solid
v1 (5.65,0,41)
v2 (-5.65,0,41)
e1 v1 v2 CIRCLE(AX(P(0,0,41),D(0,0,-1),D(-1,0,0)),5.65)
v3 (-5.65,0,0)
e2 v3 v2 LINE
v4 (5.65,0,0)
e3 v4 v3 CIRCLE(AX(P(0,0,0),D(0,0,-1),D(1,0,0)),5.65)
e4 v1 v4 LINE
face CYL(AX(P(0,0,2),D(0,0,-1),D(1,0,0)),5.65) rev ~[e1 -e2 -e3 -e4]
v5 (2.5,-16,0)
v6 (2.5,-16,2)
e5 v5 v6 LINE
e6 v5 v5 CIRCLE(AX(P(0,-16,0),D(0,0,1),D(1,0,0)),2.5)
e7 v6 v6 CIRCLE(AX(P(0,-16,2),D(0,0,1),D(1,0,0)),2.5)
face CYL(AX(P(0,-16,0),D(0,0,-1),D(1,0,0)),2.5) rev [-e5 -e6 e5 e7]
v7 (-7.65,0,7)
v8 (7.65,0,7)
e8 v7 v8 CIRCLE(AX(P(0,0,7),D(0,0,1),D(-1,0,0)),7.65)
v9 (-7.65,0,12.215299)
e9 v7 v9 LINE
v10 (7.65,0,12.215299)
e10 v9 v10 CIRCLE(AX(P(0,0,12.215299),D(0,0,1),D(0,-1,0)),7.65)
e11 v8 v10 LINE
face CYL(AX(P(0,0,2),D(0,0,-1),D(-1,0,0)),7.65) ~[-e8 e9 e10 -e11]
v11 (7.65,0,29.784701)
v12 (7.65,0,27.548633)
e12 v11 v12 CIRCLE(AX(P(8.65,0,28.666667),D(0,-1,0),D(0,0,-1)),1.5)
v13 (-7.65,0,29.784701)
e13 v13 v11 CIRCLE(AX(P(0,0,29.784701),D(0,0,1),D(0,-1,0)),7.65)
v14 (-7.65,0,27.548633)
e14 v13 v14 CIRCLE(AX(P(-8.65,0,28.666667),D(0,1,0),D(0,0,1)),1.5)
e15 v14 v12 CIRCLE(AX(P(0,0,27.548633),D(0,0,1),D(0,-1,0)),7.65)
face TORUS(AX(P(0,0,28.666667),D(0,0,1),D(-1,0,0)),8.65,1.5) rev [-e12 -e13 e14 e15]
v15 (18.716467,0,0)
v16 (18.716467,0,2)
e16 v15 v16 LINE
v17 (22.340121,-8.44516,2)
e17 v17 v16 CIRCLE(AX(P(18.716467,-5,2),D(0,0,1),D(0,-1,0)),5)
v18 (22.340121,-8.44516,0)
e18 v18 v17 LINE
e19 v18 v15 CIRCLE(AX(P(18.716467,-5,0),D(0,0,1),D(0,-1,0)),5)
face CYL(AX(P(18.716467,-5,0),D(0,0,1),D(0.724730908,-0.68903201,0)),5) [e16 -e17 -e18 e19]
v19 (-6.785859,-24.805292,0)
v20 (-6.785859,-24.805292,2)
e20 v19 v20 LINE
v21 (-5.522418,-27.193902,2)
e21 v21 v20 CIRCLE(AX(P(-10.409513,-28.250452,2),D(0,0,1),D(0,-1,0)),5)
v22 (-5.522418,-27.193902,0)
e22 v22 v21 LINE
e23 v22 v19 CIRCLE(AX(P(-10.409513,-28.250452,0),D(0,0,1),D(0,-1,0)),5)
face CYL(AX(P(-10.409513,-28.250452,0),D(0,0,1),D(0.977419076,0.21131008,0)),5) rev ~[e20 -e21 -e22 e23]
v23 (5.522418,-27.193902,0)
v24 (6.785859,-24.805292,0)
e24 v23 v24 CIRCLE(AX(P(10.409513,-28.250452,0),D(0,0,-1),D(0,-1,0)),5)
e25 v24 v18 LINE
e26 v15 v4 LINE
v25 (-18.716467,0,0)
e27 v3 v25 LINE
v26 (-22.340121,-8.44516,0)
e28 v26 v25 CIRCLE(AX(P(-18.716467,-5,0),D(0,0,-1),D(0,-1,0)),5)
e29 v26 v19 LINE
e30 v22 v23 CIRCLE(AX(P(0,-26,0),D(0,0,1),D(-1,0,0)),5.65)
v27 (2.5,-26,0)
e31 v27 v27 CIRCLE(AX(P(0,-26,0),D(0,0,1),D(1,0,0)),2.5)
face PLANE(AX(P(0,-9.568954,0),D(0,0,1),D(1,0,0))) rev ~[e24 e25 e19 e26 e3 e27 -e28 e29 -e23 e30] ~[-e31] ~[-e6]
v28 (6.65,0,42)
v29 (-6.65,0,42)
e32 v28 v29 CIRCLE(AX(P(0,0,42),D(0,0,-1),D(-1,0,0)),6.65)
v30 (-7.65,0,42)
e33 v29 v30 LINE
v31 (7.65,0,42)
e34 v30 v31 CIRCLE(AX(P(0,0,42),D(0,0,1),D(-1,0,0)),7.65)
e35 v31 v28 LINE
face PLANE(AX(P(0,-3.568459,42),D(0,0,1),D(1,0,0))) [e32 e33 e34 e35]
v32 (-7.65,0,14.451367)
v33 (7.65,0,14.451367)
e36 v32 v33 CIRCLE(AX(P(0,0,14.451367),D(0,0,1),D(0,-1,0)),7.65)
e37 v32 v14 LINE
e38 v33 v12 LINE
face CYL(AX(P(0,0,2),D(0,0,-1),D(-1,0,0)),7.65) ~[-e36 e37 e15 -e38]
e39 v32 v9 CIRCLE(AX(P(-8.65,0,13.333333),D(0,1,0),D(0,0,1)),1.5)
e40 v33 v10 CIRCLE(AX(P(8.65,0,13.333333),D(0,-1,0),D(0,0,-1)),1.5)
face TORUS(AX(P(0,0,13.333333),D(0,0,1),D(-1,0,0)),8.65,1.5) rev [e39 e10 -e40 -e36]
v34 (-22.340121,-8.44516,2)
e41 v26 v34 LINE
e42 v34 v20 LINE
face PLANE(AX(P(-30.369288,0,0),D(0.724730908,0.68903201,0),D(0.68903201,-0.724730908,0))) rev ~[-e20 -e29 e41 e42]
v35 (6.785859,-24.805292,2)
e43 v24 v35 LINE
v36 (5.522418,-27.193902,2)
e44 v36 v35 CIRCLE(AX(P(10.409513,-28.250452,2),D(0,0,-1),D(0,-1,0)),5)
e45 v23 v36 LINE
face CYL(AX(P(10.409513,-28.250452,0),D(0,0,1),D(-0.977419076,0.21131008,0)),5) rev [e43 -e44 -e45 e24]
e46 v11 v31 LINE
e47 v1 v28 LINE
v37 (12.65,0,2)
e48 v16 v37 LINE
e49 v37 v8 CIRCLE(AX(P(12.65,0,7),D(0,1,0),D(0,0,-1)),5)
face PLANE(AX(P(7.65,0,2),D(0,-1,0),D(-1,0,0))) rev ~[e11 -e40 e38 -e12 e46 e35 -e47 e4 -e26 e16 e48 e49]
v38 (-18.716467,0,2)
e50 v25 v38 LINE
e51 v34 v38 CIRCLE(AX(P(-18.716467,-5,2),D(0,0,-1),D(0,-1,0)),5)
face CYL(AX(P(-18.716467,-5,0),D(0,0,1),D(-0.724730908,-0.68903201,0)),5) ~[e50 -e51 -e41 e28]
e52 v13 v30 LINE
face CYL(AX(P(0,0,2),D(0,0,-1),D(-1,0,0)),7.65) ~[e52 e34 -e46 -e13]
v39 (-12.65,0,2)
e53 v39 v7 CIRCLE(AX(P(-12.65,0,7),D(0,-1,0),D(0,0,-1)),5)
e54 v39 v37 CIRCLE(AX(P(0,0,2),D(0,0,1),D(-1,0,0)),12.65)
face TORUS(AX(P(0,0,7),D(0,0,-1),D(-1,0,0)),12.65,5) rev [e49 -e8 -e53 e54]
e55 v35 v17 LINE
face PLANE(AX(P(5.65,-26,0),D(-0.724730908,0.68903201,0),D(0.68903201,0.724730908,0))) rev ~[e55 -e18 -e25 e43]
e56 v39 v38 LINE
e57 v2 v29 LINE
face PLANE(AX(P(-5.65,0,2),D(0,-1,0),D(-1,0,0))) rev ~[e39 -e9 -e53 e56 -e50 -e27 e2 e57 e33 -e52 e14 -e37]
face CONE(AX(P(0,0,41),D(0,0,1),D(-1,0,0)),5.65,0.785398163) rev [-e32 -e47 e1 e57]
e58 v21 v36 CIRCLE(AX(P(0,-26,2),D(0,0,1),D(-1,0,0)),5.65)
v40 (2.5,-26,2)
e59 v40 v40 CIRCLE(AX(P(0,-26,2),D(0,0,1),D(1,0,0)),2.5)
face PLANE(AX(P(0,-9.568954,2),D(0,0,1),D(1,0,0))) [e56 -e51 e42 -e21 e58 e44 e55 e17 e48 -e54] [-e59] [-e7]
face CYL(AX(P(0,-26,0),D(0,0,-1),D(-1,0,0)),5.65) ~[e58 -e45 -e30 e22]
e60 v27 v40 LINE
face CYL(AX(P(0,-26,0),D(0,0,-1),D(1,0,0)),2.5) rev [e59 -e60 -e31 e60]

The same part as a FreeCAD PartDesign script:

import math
import FreeCAD as App
import Part
import Sketcher


def edges_at(feature, points):
    """Names of the edges that pass closest to the given points."""
    edges = feature.Shape.Edges
    near = lambda p: min(range(len(edges)), key=lambda i: edges[i].distToShape(Part.Vertex(*p))[0])
    return sorted({f"Edge{near(p) + 1}" for p in points})

doc = App.newDocument("Part")
params = doc.addObject("Spreadsheet::Sheet", "Params")
for row, (alias, value) in enumerate([
    ("sketch1_diameter", "5 mm"),
    ("sketch1_radius", "5.65 mm"),
    ("pad1_length", "2 mm"),
    ("sketch2_width", "2 mm"),
    ("sketch2_radius", "5.65 mm"),
    ("pad2_length", "40 mm"),
    ("fillet_radius", "5 mm"),
    ("sketch3_radius", "1.5 mm"),
    ("sketch3_width", "1 mm"),
    ("groove_angle", "360 deg"),
], start=1):
    params.set(f"A{row}", alias)
    params.set(f"B{row}", "=" + value)
    params.setAlias(f"B{row}", alias)

body = doc.addObject("PartDesign::Body", "Body")

# Sketch on XY plane
sketch1 = body.newObject("Sketcher::SketchObject", "Sketch")
sketch1.AttachmentSupport = (doc.getObject("XY_Plane"), [""])
sketch1.MapMode = "FlatFace"
sketch1.addGeometry([
    Part.ArcOfCircle(Part.Circle(App.Vector(0, 0, 0), App.Vector(0, 0, 1), 5.7), math.radians(180), math.radians(360)),  # 0
    Part.LineSegment(App.Vector(-5.7, 0, 0), App.Vector(-30.4, 0, 0)),  # 1
    Part.LineSegment(App.Vector(-30.4, 0, 0), App.Vector(-5.7, -26, 0)),  # 2
    Part.ArcOfCircle(Part.Circle(App.Vector(0, -26, 0), App.Vector(0, 0, 1), 5.7), math.radians(180), math.radians(360)),  # 3
    Part.LineSegment(App.Vector(5.7, -26, 0), App.Vector(30.4, 0, 0)),  # 4
    Part.LineSegment(App.Vector(30.4, 0, 0), App.Vector(5.7, 0, 0)),  # 5
    Part.Circle(App.Vector(0, -26, 0), App.Vector(0, 0, 1), 2.5),  # 6
    Part.Circle(App.Vector(0, -16, 0), App.Vector(0, 0, 1), 2.5),  # 7
], False)
sketch1.addConstraint([
    Sketcher.Constraint("Coincident", 0, 1, 1, 1),
    Sketcher.Constraint("Coincident", 1, 2, 2, 1),
    Sketcher.Constraint("Coincident", 2, 2, 3, 1),
    Sketcher.Constraint("Coincident", 3, 2, 4, 1),
    Sketcher.Constraint("Coincident", 4, 2, 5, 1),
    Sketcher.Constraint("Coincident", 5, 2, 0, 2),
    Sketcher.Constraint("Horizontal", 1),
    Sketcher.Constraint("Horizontal", 5),
    Sketcher.Constraint("Coincident", 0, 3, -1, 1),
    Sketcher.Constraint("Coincident", 6, 3, 3, 3),
    Sketcher.Constraint("Equal", 0, 3),
    Sketcher.Constraint("Equal", 6, 7),
    Sketcher.Constraint("Symmetric", 1, 2, 4, 2, -1, 1),
    Sketcher.Constraint("Symmetric", 2, 2, 3, 2, -2),
    Sketcher.Constraint("PointOnObject", 7, 3, -2),
    Sketcher.Constraint("PointOnObject", 0, 1, -1),
    Sketcher.Constraint("Horizontal", 6, 3, 2, 2),
    Sketcher.Constraint("Diameter", 6, 5.0),
    Sketcher.Constraint("Radius", 0, 5.65),
    Sketcher.Constraint("DistanceY", 3, 3, -1, 1, 26.0),
    Sketcher.Constraint("DistanceY", 7, 3, -1, 1, 16.0),
    Sketcher.Constraint("DistanceX", 1, 2, 1, 1, 24.719288),
])
sketch1.setExpression("Constraints[17]", "Params.sketch1_diameter")
sketch1.setExpression("Constraints[18]", "Params.sketch1_radius")
pad1 = body.newObject("PartDesign::Pad", "Pad")
pad1.Profile = sketch1
pad1.setExpression("Length", "Params.pad1_length")

# Sketch on XY plane
sketch2 = body.newObject("Sketcher::SketchObject", "Sketch001")
sketch2.AttachmentSupport = (doc.getObject("XY_Plane"), [""])
sketch2.MapMode = "FlatFace"
sketch2.AttachmentOffset = App.Placement(App.Vector(0, 0, 2), App.Rotation())
sketch2.addGeometry([
    Part.ArcOfCircle(Part.Circle(App.Vector(0, 0, 0), App.Vector(0, 0, 1), 5.7), math.radians(180), math.radians(360)),
    Part.LineSegment(App.Vector(-5.7, 0, 0), App.Vector(-7.7, 0, 0)),
    Part.ArcOfCircle(Part.Circle(App.Vector(0, 0, 0), App.Vector(0, 0, 1), 7.7), math.radians(180), math.radians(360)),
    Part.LineSegment(App.Vector(7.7, 0, 0), App.Vector(5.7, 0, 0)),
], False)
sketch2.addConstraint([
    Sketcher.Constraint("Coincident", 0, 1, 1, 1),
    Sketcher.Constraint("Coincident", 1, 2, 2, 1),
    Sketcher.Constraint("Coincident", 2, 2, 3, 1),
    Sketcher.Constraint("Coincident", 3, 2, 0, 2),
    Sketcher.Constraint("Horizontal", 1),
    Sketcher.Constraint("Horizontal", 3),
    Sketcher.Constraint("Coincident", 0, 3, -1, 1),
    Sketcher.Constraint("Coincident", 2, 3, -1, 1),
    Sketcher.Constraint("PointOnObject", 0, 1, -1),
    Sketcher.Constraint("PointOnObject", 2, 2, -1),
    Sketcher.Constraint("DistanceX", 1, 2, 1, 1, 2.0),
    Sketcher.Constraint("Radius", 0, 5.65),
])
sketch2.setExpression("Constraints[10]", "Params.sketch2_width")
sketch2.setExpression("Constraints[11]", "Params.sketch2_radius")
pad2 = body.newObject("PartDesign::Pad", "Pad001")
pad2.Profile = sketch2
pad2.setExpression("Length", "Params.pad2_length")
doc.recompute()

fillet = body.newObject("PartDesign::Fillet", "Fillet")
fillet.Base = (pad2, edges_at(pad2, [
    (0, -7.65, 2),
    (-30.369, 0, 1),
    (-5.65, -26, 1),
    (5.65, -26, 1),
    (30.369, 0, 1),
]))
fillet.setExpression("Radius", "Params.fillet_radius")

# Sketch on XZ plane
sketch3 = body.newObject("Sketcher::SketchObject", "Sketch002")
sketch3.AttachmentSupport = (doc.getObject("XZ_Plane"), [""])
sketch3.MapMode = "FlatFace"
sketch3.addGeometry([
    Part.ArcOfCircle(Part.Circle(App.Vector(-8.7, 13.3, 0), App.Vector(0, 0, 1), 1.5), math.radians(-90), math.radians(90)),  # 0
    Part.LineSegment(App.Vector(-8.7, 11.8, 0), App.Vector(-8.7, 14.8, 0)),  # 1
    Part.ArcOfCircle(Part.Circle(App.Vector(-8.7, 28.7, 0), App.Vector(0, 0, 1), 1.5), math.radians(-90), math.radians(90)),  # 2
    Part.LineSegment(App.Vector(-8.7, 27.2, 0), App.Vector(-8.7, 30.2, 0)),  # 3
    Part.LineSegment(App.Vector(-5.7, 41, 0), App.Vector(-6.7, 42, 0)),  # 4
    Part.LineSegment(App.Vector(-6.7, 42, 0), App.Vector(-5.7, 42, 0)),  # 5
    Part.LineSegment(App.Vector(-5.7, 42, 0), App.Vector(-5.7, 41, 0)),  # 6
], False)
sketch3.addConstraint([
    Sketcher.Constraint("Coincident", 0, 1, 1, 1),
    Sketcher.Constraint("Coincident", 1, 2, 0, 2),
    Sketcher.Constraint("Coincident", 2, 1, 3, 1),
    Sketcher.Constraint("Coincident", 3, 2, 2, 2),
    Sketcher.Constraint("Coincident", 4, 2, 5, 1),
    Sketcher.Constraint("Coincident", 5, 2, 6, 1),
    Sketcher.Constraint("Coincident", 6, 2, 4, 1),
    Sketcher.Constraint("Vertical", 1),
    Sketcher.Constraint("Vertical", 3),
    Sketcher.Constraint("Horizontal", 5),
    Sketcher.Constraint("Vertical", 6),
    Sketcher.Constraint("Equal", 0, 2),
    Sketcher.Constraint("Vertical", 0, 3, 2, 3),
    Sketcher.Constraint("Vertical", 2, 3, 0, 1),
    Sketcher.Constraint("Vertical", 1, 2, 2, 1),
    Sketcher.Constraint("Equal", 5, 6),
    Sketcher.Constraint("Radius", 0, 1.5),
    Sketcher.Constraint("DistanceX", 5, 1, 5, 2, 1.0),
    Sketcher.Constraint("DistanceY", -1, 1, 4, 2, 42.0),
    Sketcher.Constraint("DistanceX", 3, 2, 4, 2, 2.0),
    Sketcher.Constraint("DistanceX", 0, 3, -1, 1, 8.65),
    Sketcher.Constraint("DistanceY", -1, 1, 0, 3, 13.333333),
    Sketcher.Constraint("DistanceY", -1, 1, 2, 3, 28.666667),
])
sketch3.setExpression("Constraints[16]", "Params.sketch3_radius")
sketch3.setExpression("Constraints[17]", "Params.sketch3_width")
groove = body.newObject("PartDesign::Groove", "Groove")
groove.Profile = sketch3
groove.ReferenceAxis = (sketch3, ["V_Axis"])
groove.setExpression("Angle", "Params.groove_angle")

doc.recompute()
